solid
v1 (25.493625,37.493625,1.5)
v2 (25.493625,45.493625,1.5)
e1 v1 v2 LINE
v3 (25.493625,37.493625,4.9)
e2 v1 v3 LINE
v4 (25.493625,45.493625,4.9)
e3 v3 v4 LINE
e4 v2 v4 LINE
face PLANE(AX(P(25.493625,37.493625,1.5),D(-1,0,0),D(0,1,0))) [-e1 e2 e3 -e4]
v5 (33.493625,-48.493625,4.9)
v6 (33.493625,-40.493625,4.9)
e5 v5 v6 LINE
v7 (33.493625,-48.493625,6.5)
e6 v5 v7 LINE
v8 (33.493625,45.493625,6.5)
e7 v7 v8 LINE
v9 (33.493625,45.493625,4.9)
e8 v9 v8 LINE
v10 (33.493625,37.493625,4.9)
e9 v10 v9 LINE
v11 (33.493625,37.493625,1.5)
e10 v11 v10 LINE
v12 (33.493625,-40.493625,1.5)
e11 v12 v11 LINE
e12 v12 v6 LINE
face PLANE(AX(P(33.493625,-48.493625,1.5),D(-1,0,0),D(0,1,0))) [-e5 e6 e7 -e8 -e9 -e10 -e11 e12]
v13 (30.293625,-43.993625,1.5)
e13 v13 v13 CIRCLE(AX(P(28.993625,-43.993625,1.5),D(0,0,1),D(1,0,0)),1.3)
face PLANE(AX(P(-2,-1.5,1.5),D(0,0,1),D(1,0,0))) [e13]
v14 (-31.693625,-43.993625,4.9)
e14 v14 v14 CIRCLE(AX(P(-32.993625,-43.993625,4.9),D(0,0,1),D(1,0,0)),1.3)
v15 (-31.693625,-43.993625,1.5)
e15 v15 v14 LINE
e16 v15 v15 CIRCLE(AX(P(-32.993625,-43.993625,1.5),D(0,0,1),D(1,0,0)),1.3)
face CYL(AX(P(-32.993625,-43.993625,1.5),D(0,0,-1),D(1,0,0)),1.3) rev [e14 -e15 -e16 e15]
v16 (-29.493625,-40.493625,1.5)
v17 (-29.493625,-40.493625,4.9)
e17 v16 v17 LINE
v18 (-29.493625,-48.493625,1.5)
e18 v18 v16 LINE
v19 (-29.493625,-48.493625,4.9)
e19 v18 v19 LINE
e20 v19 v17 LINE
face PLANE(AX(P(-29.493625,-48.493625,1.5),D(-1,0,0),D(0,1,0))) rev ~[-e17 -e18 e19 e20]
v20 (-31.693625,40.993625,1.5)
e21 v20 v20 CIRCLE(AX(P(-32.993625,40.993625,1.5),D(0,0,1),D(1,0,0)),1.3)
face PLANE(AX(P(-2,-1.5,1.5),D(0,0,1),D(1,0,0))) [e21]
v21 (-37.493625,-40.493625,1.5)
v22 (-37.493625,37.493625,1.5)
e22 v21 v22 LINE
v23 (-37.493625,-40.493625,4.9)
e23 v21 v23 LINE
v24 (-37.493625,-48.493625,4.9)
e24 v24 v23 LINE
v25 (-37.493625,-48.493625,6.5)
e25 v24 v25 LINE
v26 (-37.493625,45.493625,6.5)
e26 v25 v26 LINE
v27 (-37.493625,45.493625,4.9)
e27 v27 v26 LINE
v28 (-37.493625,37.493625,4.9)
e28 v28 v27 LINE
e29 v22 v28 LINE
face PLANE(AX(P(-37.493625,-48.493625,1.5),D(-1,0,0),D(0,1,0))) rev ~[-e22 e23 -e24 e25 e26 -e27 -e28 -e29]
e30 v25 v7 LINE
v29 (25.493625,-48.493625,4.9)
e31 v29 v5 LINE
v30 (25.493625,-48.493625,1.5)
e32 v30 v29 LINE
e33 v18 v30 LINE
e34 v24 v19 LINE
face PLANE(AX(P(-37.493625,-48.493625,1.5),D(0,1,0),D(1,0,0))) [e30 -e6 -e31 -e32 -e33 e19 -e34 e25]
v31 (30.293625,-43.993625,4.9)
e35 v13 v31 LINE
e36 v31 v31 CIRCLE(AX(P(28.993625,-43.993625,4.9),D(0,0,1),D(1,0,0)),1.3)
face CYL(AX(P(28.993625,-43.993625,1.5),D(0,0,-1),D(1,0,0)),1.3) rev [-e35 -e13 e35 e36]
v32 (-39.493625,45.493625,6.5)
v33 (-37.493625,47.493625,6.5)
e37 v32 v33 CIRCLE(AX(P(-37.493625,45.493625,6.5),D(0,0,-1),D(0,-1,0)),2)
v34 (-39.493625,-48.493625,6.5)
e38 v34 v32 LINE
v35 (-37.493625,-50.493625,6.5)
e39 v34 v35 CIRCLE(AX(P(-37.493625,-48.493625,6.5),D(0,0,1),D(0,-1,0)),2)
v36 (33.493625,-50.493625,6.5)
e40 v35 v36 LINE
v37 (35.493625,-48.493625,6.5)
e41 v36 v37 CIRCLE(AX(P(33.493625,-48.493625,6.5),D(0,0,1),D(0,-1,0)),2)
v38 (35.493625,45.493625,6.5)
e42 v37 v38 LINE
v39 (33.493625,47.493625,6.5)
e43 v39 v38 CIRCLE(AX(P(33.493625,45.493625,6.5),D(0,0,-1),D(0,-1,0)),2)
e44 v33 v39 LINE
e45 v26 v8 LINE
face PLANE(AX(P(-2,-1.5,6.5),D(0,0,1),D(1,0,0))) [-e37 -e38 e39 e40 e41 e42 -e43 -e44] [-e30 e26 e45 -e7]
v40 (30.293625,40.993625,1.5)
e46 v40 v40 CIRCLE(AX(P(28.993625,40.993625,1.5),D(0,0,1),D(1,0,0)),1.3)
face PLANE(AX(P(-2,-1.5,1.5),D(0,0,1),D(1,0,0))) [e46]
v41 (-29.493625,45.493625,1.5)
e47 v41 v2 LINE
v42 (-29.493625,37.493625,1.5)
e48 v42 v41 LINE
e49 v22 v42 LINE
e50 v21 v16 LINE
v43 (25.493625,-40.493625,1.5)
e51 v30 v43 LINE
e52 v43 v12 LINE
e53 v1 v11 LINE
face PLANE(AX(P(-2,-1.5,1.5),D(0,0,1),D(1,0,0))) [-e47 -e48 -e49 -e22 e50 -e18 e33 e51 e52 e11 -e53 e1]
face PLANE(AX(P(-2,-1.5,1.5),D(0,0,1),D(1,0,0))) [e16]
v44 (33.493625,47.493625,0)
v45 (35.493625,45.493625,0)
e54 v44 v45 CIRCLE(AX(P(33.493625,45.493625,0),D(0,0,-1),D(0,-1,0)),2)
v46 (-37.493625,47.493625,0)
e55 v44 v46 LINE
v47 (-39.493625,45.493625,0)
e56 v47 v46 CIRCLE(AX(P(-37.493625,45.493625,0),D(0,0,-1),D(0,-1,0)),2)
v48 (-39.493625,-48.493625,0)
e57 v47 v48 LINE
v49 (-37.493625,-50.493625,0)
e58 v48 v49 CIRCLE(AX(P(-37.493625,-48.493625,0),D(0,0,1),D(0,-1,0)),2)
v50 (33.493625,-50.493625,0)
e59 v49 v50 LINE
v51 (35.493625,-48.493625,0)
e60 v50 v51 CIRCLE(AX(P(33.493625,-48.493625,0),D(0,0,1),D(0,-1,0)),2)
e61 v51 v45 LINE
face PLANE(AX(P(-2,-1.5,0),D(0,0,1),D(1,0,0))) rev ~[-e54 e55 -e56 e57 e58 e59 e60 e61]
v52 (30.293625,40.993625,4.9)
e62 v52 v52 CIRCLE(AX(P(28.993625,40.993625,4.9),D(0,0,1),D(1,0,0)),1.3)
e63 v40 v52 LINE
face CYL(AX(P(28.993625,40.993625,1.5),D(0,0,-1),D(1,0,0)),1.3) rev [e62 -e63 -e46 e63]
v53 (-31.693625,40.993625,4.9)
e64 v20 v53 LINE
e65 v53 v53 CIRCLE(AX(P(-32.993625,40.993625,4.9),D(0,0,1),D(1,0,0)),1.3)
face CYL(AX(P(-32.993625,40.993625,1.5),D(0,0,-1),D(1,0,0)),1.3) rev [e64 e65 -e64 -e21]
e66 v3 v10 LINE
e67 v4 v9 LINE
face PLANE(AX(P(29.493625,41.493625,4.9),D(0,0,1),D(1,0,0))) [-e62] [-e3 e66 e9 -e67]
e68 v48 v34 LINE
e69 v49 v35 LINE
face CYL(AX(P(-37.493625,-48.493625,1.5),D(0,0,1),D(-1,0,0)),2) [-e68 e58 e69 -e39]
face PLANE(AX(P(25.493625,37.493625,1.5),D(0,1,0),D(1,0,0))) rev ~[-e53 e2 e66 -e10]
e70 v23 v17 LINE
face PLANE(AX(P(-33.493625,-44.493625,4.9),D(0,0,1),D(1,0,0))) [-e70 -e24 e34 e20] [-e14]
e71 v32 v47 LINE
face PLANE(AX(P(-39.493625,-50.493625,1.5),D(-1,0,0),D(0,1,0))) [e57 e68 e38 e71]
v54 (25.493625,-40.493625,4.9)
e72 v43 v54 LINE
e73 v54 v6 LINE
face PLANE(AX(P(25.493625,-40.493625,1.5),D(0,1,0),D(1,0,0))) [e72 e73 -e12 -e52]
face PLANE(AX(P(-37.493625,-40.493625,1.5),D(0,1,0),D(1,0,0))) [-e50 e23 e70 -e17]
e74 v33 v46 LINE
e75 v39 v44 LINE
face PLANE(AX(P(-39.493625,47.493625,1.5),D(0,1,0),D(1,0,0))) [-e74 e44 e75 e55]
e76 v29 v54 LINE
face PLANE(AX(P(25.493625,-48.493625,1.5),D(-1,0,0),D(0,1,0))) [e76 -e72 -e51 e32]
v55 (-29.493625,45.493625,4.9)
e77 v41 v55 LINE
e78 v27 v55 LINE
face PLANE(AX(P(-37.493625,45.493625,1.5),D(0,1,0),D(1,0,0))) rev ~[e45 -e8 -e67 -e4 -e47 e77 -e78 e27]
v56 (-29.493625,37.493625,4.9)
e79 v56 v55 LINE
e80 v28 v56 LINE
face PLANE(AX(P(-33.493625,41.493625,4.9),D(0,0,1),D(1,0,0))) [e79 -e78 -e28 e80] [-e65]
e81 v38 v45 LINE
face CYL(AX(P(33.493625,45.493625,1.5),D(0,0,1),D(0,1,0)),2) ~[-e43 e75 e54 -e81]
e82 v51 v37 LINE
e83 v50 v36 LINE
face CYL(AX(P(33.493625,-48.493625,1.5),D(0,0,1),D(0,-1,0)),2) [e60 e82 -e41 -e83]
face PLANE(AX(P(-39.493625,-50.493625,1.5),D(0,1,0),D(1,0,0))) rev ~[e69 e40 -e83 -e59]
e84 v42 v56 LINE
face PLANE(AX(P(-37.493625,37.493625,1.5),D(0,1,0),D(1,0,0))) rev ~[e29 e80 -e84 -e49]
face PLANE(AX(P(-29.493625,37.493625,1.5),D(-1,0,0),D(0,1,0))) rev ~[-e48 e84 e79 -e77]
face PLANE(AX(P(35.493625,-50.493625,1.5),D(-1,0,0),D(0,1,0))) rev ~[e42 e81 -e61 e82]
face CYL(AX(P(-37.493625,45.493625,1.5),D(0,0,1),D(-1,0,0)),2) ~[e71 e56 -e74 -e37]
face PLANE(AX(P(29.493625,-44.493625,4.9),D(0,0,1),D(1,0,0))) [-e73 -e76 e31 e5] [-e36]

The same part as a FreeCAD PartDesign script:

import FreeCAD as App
import Part
import Sketcher

V = App.Vector


def edges_at(feature, points):
    """Names of the edges that pass closest to the given points."""
    edges = feature.Shape.Edges
    near = lambda p: min(range(len(edges)), key=lambda i: edges[i].distToShape(Part.Vertex(*p))[0])
    return sorted({f"Edge{near(p) + 1}" for p in points})

doc = App.newDocument("Part")
body = doc.addObject("PartDesign::Body", "Body")

# Sketch on XY plane
sketch1 = body.newObject("Sketcher::SketchObject", "Sketch")
sketch1.AttachmentSupport = (doc.getObject("XY_Plane"), [""])
sketch1.MapMode = "FlatFace"
sketch1.addGeometry(Part.LineSegment(V(-39, -50, 0), V(35, -50, 0)), False)
sketch1.addGeometry(Part.LineSegment(V(35, -50, 0), V(35, 47, 0)), False)
sketch1.addGeometry(Part.LineSegment(V(35, 47, 0), V(-39, 47, 0)), False)
sketch1.addGeometry(Part.LineSegment(V(-39, 47, 0), V(-39, -50, 0)), False)
sketch1.addConstraint(Sketcher.Constraint("Coincident", 0, 2, 1, 1))
sketch1.addConstraint(Sketcher.Constraint("Coincident", 1, 2, 2, 1))
sketch1.addConstraint(Sketcher.Constraint("Coincident", 2, 2, 3, 1))
sketch1.addConstraint(Sketcher.Constraint("Coincident", 3, 2, 0, 1))
sketch1.addConstraint(Sketcher.Constraint("Horizontal", 0))
sketch1.addConstraint(Sketcher.Constraint("Vertical", 1))
sketch1.addConstraint(Sketcher.Constraint("Horizontal", 2))
sketch1.addConstraint(Sketcher.Constraint("Vertical", 3))
sketch1.addConstraint(Sketcher.Constraint("DistanceX", 0, 1, 0, 2, 74.987251))
sketch1.addConstraint(Sketcher.Constraint("DistanceY", 1, 1, 1, 2, 97.987251))
sketch1.addConstraint(Sketcher.Constraint("DistanceX", -1, 1, 0, 2, 35.493625))
sketch1.addConstraint(Sketcher.Constraint("DistanceY", 0, 2, -1, 1, 50.493625))
pad1 = body.newObject("PartDesign::Pad", "Pad")
pad1.Profile = sketch1
pad1.Length = 1.5

# Sketch on XY plane
sketch2 = body.newObject("Sketcher::SketchObject", "Sketch001")
sketch2.AttachmentSupport = (doc.getObject("XY_Plane"), [""])
sketch2.MapMode = "FlatFace"
sketch2.AttachmentOffset = App.Placement(V(0, 0, 1.5), App.Rotation())
sketch2.addGeometry(Part.LineSegment(V(-39, 47, 0), V(-39, -50, 0)), False)
sketch2.addGeometry(Part.LineSegment(V(-39, -50, 0), V(35, -50, 0)), False)
sketch2.addGeometry(Part.LineSegment(V(35, -50, 0), V(35, 47, 0)), False)
sketch2.addGeometry(Part.LineSegment(V(35, 47, 0), V(-39, 47, 0)), False)
sketch2.addGeometry(Part.LineSegment(V(33, -48, 0), V(-37, -48, 0)), False)
sketch2.addGeometry(Part.LineSegment(V(-37, -48, 0), V(-37, 45, 0)), False)
sketch2.addGeometry(Part.LineSegment(V(-37, 45, 0), V(33, 45, 0)), False)
sketch2.addGeometry(Part.LineSegment(V(33, 45, 0), V(33, -48, 0)), False)
sketch2.addConstraint(Sketcher.Constraint("Coincident", 0, 2, 1, 1))
sketch2.addConstraint(Sketcher.Constraint("Coincident", 1, 2, 2, 1))
sketch2.addConstraint(Sketcher.Constraint("Coincident", 2, 2, 3, 1))
sketch2.addConstraint(Sketcher.Constraint("Coincident", 3, 2, 0, 1))
sketch2.addConstraint(Sketcher.Constraint("Coincident", 4, 2, 5, 1))
sketch2.addConstraint(Sketcher.Constraint("Coincident", 5, 2, 6, 1))
sketch2.addConstraint(Sketcher.Constraint("Coincident", 6, 2, 7, 1))
sketch2.addConstraint(Sketcher.Constraint("Coincident", 7, 2, 4, 1))
sketch2.addConstraint(Sketcher.Constraint("Vertical", 0))
sketch2.addConstraint(Sketcher.Constraint("Horizontal", 1))
sketch2.addConstraint(Sketcher.Constraint("Vertical", 2))
sketch2.addConstraint(Sketcher.Constraint("Horizontal", 3))
sketch2.addConstraint(Sketcher.Constraint("Horizontal", 4))
sketch2.addConstraint(Sketcher.Constraint("Vertical", 5))
sketch2.addConstraint(Sketcher.Constraint("Horizontal", 6))
sketch2.addConstraint(Sketcher.Constraint("Vertical", 7))
sketch2.addConstraint(Sketcher.Constraint("DistanceX", 0, 2, 4, 2, 2.0))
sketch2.addConstraint(Sketcher.Constraint("DistanceY", 0, 2, 4, 2, 2.0))
sketch2.addConstraint(Sketcher.Constraint("DistanceY", 5, 2, 3, 2, 2.0))
sketch2.addConstraint(Sketcher.Constraint("DistanceX", 6, 2, 2, 2, 2.0))
sketch2.addConstraint(Sketcher.Constraint("DistanceX", 1, 1, 1, 2, 74.987251))
sketch2.addConstraint(Sketcher.Constraint("DistanceY", 0, 2, 0, 1, 97.987251))
sketch2.addConstraint(Sketcher.Constraint("DistanceX", 0, 2, -1, 1, 39.493625))
sketch2.addConstraint(Sketcher.Constraint("DistanceY", 0, 2, -1, 1, 50.493625))
pad2 = body.newObject("PartDesign::Pad", "Pad001")
pad2.Profile = sketch2
pad2.Length = 5

# Sketch on XY plane
sketch3 = body.newObject("Sketcher::SketchObject", "Sketch002")
sketch3.AttachmentSupport = (doc.getObject("XY_Plane"), [""])
sketch3.MapMode = "FlatFace"
sketch3.AttachmentOffset = App.Placement(V(0, 0, 1.5), App.Rotation())
sketch3.addGeometry(Part.LineSegment(V(-37.5, 45.5, 0), V(-37.5, 37.5, 0)), False)
sketch3.addGeometry(Part.LineSegment(V(-37.5, 37.5, 0), V(-29.5, 37.5, 0)), False)
sketch3.addGeometry(Part.LineSegment(V(-29.5, 37.5, 0), V(-29.5, 45.5, 0)), False)
sketch3.addGeometry(Part.LineSegment(V(-29.5, 45.5, 0), V(-37.5, 45.5, 0)), False)
sketch3.addGeometry(Part.Circle(V(-33, 41, 0), V(0, 0, 1), 1.3), False)
sketch3.addGeometry(Part.LineSegment(V(25.5, 45.5, 0), V(25.5, 37.5, 0)), False)
sketch3.addGeometry(Part.LineSegment(V(25.5, 37.5, 0), V(33.5, 37.5, 0)), False)
sketch3.addGeometry(Part.LineSegment(V(33.5, 37.5, 0), V(33.5, 45.5, 0)), False)
sketch3.addGeometry(Part.LineSegment(V(33.5, 45.5, 0), V(25.5, 45.5, 0)), False)
sketch3.addGeometry(Part.Circle(V(29, 41, 0), V(0, 0, 1), 1.3), False)
sketch3.addGeometry(Part.LineSegment(V(25.5, -40.5, 0), V(25.5, -48.5, 0)), False)
sketch3.addGeometry(Part.LineSegment(V(25.5, -48.5, 0), V(33.5, -48.5, 0)), False)
sketch3.addGeometry(Part.LineSegment(V(33.5, -48.5, 0), V(33.5, -40.5, 0)), False)
sketch3.addGeometry(Part.LineSegment(V(33.5, -40.5, 0), V(25.5, -40.5, 0)), False)
sketch3.addGeometry(Part.Circle(V(29, -44, 0), V(0, 0, 1), 1.3), False)
sketch3.addGeometry(Part.LineSegment(V(-37.5, -40.5, 0), V(-37.5, -48.5, 0)), False)
sketch3.addGeometry(Part.LineSegment(V(-37.5, -48.5, 0), V(-29.5, -48.5, 0)), False)
sketch3.addGeometry(Part.LineSegment(V(-29.5, -48.5, 0), V(-29.5, -40.5, 0)), False)
sketch3.addGeometry(Part.LineSegment(V(-29.5, -40.5, 0), V(-37.5, -40.5, 0)), False)
sketch3.addGeometry(Part.Circle(V(-33, -44, 0), V(0, 0, 1), 1.3), False)
sketch3.addConstraint(Sketcher.Constraint("Coincident", 0, 2, 1, 1))
sketch3.addConstraint(Sketcher.Constraint("Coincident", 1, 2, 2, 1))
sketch3.addConstraint(Sketcher.Constraint("Coincident", 2, 2, 3, 1))
sketch3.addConstraint(Sketcher.Constraint("Coincident", 3, 2, 0, 1))
sketch3.addConstraint(Sketcher.Constraint("Coincident", 5, 2, 6, 1))
sketch3.addConstraint(Sketcher.Constraint("Coincident", 6, 2, 7, 1))
sketch3.addConstraint(Sketcher.Constraint("Coincident", 7, 2, 8, 1))
sketch3.addConstraint(Sketcher.Constraint("Coincident", 8, 2, 5, 1))
sketch3.addConstraint(Sketcher.Constraint("Coincident", 10, 2, 11, 1))
sketch3.addConstraint(Sketcher.Constraint("Coincident", 11, 2, 12, 1))
sketch3.addConstraint(Sketcher.Constraint("Coincident", 12, 2, 13, 1))
sketch3.addConstraint(Sketcher.Constraint("Coincident", 13, 2, 10, 1))
sketch3.addConstraint(Sketcher.Constraint("Coincident", 15, 2, 16, 1))
sketch3.addConstraint(Sketcher.Constraint("Coincident", 16, 2, 17, 1))
sketch3.addConstraint(Sketcher.Constraint("Coincident", 17, 2, 18, 1))
sketch3.addConstraint(Sketcher.Constraint("Coincident", 18, 2, 15, 1))
sketch3.addConstraint(Sketcher.Constraint("Vertical", 0))
sketch3.addConstraint(Sketcher.Constraint("Horizontal", 1))
sketch3.addConstraint(Sketcher.Constraint("Vertical", 2))
sketch3.addConstraint(Sketcher.Constraint("Horizontal", 3))
sketch3.addConstraint(Sketcher.Constraint("Vertical", 5))
sketch3.addConstraint(Sketcher.Constraint("Horizontal", 6))
sketch3.addConstraint(Sketcher.Constraint("Vertical", 7))
sketch3.addConstraint(Sketcher.Constraint("Horizontal", 8))
sketch3.addConstraint(Sketcher.Constraint("Vertical", 10))
sketch3.addConstraint(Sketcher.Constraint("Horizontal", 11))
sketch3.addConstraint(Sketcher.Constraint("Vertical", 12))
sketch3.addConstraint(Sketcher.Constraint("Horizontal", 13))
sketch3.addConstraint(Sketcher.Constraint("Vertical", 15))
sketch3.addConstraint(Sketcher.Constraint("Horizontal", 16))
sketch3.addConstraint(Sketcher.Constraint("Vertical", 17))
sketch3.addConstraint(Sketcher.Constraint("Horizontal", 18))
sketch3.addConstraint(Sketcher.Constraint("Equal", 4, 9))
sketch3.addConstraint(Sketcher.Constraint("Equal", 9, 14))
sketch3.addConstraint(Sketcher.Constraint("Equal", 14, 19))
sketch3.addConstraint(Sketcher.Constraint("Horizontal", 4, 3, 9, 3))
sketch3.addConstraint(Sketcher.Constraint("Horizontal", 14, 3, 19, 3))
sketch3.addConstraint(Sketcher.Constraint("Horizontal", 1, 2, 5, 2))
sketch3.addConstraint(Sketcher.Constraint("Horizontal", 3, 2, 7, 2))
sketch3.addConstraint(Sketcher.Constraint("Horizontal", 11, 2, 15, 2))
sketch3.addConstraint(Sketcher.Constraint("Horizontal", 13, 2, 17, 2))
sketch3.addConstraint(Sketcher.Constraint("Vertical", 9, 3, 14, 3))
sketch3.addConstraint(Sketcher.Constraint("Vertical", 4, 3, 19, 3))
sketch3.addConstraint(Sketcher.Constraint("Vertical", 8, 2, 10, 2))
sketch3.addConstraint(Sketcher.Constraint("Vertical", 7, 2, 11, 2))
sketch3.addConstraint(Sketcher.Constraint("Vertical", 3, 2, 15, 2))
sketch3.addConstraint(Sketcher.Constraint("Vertical", 2, 2, 16, 2))
sketch3.addConstraint(Sketcher.Constraint("Equal", 3, 6))
sketch3.addConstraint(Sketcher.Constraint("Equal", 18, 0))
sketch3.addConstraint(Sketcher.Constraint("Equal", 7, 10))
sketch3.addConstraint(Sketcher.Constraint("Diameter", 4, 2.6))
sketch3.addConstraint(Sketcher.Constraint("DistanceX", 1, 1, 1, 2, 8.0))
sketch3.addConstraint(Sketcher.Constraint("DistanceX", 0, 2, 4, 3, 4.5))
sketch3.addConstraint(Sketcher.Constraint("DistanceY", 0, 2, 4, 3, 3.5))
sketch3.addConstraint(Sketcher.Constraint("DistanceX", 5, 2, 9, 3, 3.5))
sketch3.addConstraint(Sketcher.Constraint("DistanceY", 10, 2, 14, 3, 4.5))
sketch3.addConstraint(Sketcher.Constraint("DistanceX", 4, 3, 9, 3, 61.987251))
sketch3.addConstraint(Sketcher.Constraint("DistanceY", 14, 3, 9, 3, 84.987251))
sketch3.addConstraint(Sketcher.Constraint("DistanceX", 4, 3, -1, 1, 32.993625))
sketch3.addConstraint(Sketcher.Constraint("DistanceY", -1, 1, 4, 3, 40.993625))
pad3 = body.newObject("PartDesign::Pad", "Pad002")
pad3.Profile = sketch3
pad3.Length = 3.4
doc.recompute()

fillet = body.newObject("PartDesign::Fillet", "Fillet")
fillet.Base = (pad3, edges_at(pad3, [
    (-39.494, -50.494, 4),
    (-39.494, 47.494, 4),
    (35.494, 47.494, 4),
    (35.494, -50.494, 4),
]))
fillet.Radius = 2

doc.recompute()
